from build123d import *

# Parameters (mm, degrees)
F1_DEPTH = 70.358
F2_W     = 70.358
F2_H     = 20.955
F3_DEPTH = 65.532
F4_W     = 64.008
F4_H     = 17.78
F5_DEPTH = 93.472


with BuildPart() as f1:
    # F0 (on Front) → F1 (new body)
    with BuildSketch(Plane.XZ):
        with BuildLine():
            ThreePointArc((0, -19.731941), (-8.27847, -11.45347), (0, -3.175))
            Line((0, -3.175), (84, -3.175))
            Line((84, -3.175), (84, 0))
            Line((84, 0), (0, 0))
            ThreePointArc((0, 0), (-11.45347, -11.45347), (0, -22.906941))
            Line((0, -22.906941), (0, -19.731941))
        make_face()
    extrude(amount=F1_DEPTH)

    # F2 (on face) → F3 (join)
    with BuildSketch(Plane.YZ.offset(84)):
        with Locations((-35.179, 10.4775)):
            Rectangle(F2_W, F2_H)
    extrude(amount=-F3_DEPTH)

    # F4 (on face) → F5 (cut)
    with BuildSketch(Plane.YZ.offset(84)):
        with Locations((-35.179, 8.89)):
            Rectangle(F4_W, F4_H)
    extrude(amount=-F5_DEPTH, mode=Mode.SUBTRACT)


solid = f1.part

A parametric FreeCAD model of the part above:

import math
import FreeCAD as App
import Part
import Sketcher
from FreeCAD import Vector
Q = App.Units.Quantity


def add_polygon(sketch, points):
    """Adds a closed chain of lines whose ends are joined by coincident constraints."""
    first, n = sketch.GeometryCount, len(points)
    for a, b in zip(points, points[1:] + points[:1]):
        sketch.addGeometry(Part.LineSegment(App.Vector(*a, 0), App.Vector(*b, 0)), False)
    for i in range(n):
        sketch.addConstraint(Sketcher.Constraint("Coincident", first + i, 2, first + (i + 1) % n, 1))

doc = App.newDocument("Part")
body = doc.addObject("PartDesign::Body", "Body")

sketch1 = body.newObject("Sketcher::SketchObject", "Sketch")
sketch1.AttachmentSupport = (doc.getObject("XZ_Plane"), [""])
sketch1.MapMode = "FlatFace"
sketch1.addGeometry([
    Part.ArcOfCircle(Part.Circle(Vector(0, -11.45347, 0), Vector(0, 0, 1), 8.27847), math.radians(90.000003), math.radians(269.999997)),
    Part.LineSegment(Vector(0, -3.175, 0), Vector(84, -3.175, 0)),
    Part.LineSegment(Vector(84, -3.175, 0), Vector(84, 0, 0)),
    Part.LineSegment(Vector(84, 0, 0), Vector(0, 0, 0)),
    Part.ArcOfCircle(Part.Circle(Vector(0, -11.45347, 0), Vector(0, 0, 1), 11.45347), math.radians(90.000003), math.radians(269.999997)),
    Part.LineSegment(Vector(0, -22.906941, 0), Vector(0, -19.731941, 0)),
], False)
sketch1.addConstraint([
    Sketcher.Constraint("Tangent", 0, 1, 1, 1),
    Sketcher.Constraint("Coincident", 1, 2, 2, 1),
    Sketcher.Constraint("Coincident", 2, 2, 3, 1),
    Sketcher.Constraint("Tangent", 3, 2, 4, 1),
    Sketcher.Constraint("Coincident", 4, 2, 5, 1),
    Sketcher.Constraint("Coincident", 5, 2, 0, 2),
    Sketcher.Constraint("Horizontal", 1),
    Sketcher.Constraint("Vertical", 2),
    Sketcher.Constraint("Horizontal", 3),
    Sketcher.Constraint("Vertical", 5),
    Sketcher.Constraint("Coincident", 3, 2, -1, 1),
    Sketcher.Constraint("Coincident", 4, 3, 0, 3),
    Sketcher.Constraint("PointOnObject", 4, 2, -2),
    Sketcher.Constraint("DistanceY", 2, 1, 2, 2, Q("0.125 in")),
    Sketcher.Constraint("Radius", 0, Q("8.27847 mm")),
    Sketcher.Constraint("DistanceX", 1, 1, 1, 2, Q("84 mm")),
])
pad1 = body.newObject("PartDesign::Pad", "Pad")
pad1.Profile = sketch1
pad1.Length = Q("2.77 in")

sketch2 = body.newObject("Sketcher::SketchObject", "Sketch001")
sketch2.AttachmentSupport = (doc.getObject("YZ_Plane"), [""])
sketch2.MapMode = "FlatFace"
sketch2.AttachmentOffset = App.Placement(Vector(0, 0, 84), App.Rotation())
add_polygon(sketch2, [(-70.358, 20.955), (-70.358, 0), (0, 0), (0, 20.955)])
sketch2.addConstraint([
    Sketcher.Constraint("Vertical", 0),
    Sketcher.Constraint("Horizontal", 1),
    Sketcher.Constraint("Vertical", 2),
    Sketcher.Constraint("Horizontal", 3),
    Sketcher.Constraint("Coincident", 1, 2, -1, 1),
    Sketcher.Constraint("DistanceX", 1, 1, 1, 2, Q("2.77 in")),
    Sketcher.Constraint("DistanceY", 0, 2, 0, 1, Q("0.825 in")),
])
pad2 = body.newObject("PartDesign::Pad", "Pad001")
pad2.Profile = sketch2
pad2.Length = Q("2.58 in")
pad2.Reversed = True

sketch3 = body.newObject("Sketcher::SketchObject", "Sketch002")
sketch3.AttachmentSupport = (doc.getObject("YZ_Plane"), [""])
sketch3.MapMode = "FlatFace"
sketch3.AttachmentOffset = App.Placement(Vector(0, 0, 84), App.Rotation())
add_polygon(sketch3, [(-67.183, 17.78), (-67.183, 0), (-3.175, 0), (-3.175, 17.78)])
sketch3.addConstraint([
    Sketcher.Constraint("Vertical", 0),
    Sketcher.Constraint("Horizontal", 1),
    Sketcher.Constraint("Vertical", 2),
    Sketcher.Constraint("Horizontal", 3),
    Sketcher.Constraint("PointOnObject", 0, 2, -1),
    Sketcher.Constraint("DistanceY", 0, 2, 0, 1, Q("0.7 in")),
    Sketcher.Constraint("DistanceX", 1, 1, 1, 2, Q("2.52 in")),
    Sketcher.Constraint("DistanceX", 0, 2, -1, 1, Q("2.645 in")),
])
pocket1 = body.newObject("PartDesign::Pocket", "Pocket")
pocket1.Profile = sketch3
pocket1.Length = Q("3.68 in")

doc.recompute()
